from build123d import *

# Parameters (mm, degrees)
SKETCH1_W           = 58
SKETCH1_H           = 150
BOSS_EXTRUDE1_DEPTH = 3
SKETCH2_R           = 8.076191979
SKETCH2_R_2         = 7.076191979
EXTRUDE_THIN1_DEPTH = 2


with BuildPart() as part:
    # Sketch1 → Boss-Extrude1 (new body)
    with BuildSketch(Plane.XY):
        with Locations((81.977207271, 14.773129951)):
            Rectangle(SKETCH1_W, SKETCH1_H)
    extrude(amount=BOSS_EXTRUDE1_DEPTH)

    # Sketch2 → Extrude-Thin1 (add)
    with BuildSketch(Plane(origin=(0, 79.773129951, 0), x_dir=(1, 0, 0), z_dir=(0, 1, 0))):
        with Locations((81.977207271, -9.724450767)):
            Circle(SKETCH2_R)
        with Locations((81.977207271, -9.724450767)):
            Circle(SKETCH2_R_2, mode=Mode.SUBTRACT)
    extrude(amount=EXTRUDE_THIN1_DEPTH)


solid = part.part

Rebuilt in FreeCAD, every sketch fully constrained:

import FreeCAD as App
import Part
import Sketcher

V = App.Vector
Q = App.Units.Quantity


def add_polygon(sketch, points):
    """Adds a closed chain of lines whose ends are joined by coincident constraints."""
    first, n = sketch.GeometryCount, len(points)
    for a, b in zip(points, points[1:] + points[:1]):
        sketch.addGeometry(Part.LineSegment(App.Vector(*a, 0), App.Vector(*b, 0)), False)
    for i in range(n):
        sketch.addConstraint(Sketcher.Constraint("Coincident", first + i, 2, first + (i + 1) % n, 1))

doc = App.newDocument("Part")
body = doc.addObject("PartDesign::Body", "Body")

# Sketch on XY plane
sketch1 = doc.addObject("Sketcher::SketchObject", "Sketch")
body.addObject(sketch1)
sketch1.AttachmentSupport = (doc.XY_Plane, [""])
sketch1.MapMode = "FlatFace"
add_polygon(sketch1, [(53, 90), (53, -60), (111, -60), (111, 90)])  # lines 0-3
sketch1.addConstraint(Sketcher.Constraint("Vertical", 0))
sketch1.addConstraint(Sketcher.Constraint("Horizontal", 1))
sketch1.addConstraint(Sketcher.Constraint("Vertical", 2))
sketch1.addConstraint(Sketcher.Constraint("Horizontal", 3))
sketch1.addConstraint(Sketcher.Constraint("DistanceX", 1, 1, 1, 2, Q("58 mm")))
sketch1.addConstraint(Sketcher.Constraint("DistanceY", 0, 2, 0, 1, Q("150 mm")))
sketch1.addConstraint(Sketcher.Constraint("DistanceY", 0, 2, -1, 1, Q("60.22687 mm")))
sketch1.addConstraint(Sketcher.Constraint("DistanceX", -1, 1, 0, 2, Q("52.977207 mm")))
pad1 = doc.addObject("PartDesign::Pad", "Pad")
body.addObject(pad1)
pad1.Profile = sketch1
pad1.Length = 3

# Sketch on XZ plane
sketch2 = doc.addObject("Sketcher::SketchObject", "Sketch001")
body.addObject(sketch2)
sketch2.AttachmentSupport = (doc.XZ_Plane, [""])
sketch2.MapMode = "FlatFace"
sketch2.AttachmentOffset = App.Placement(V(0, 0, -79.77313), App.Rotation())
sketch2.addGeometry(Part.Circle(V(82, 10, 0), V(0, 0, 1), 8), False)
sketch2.addGeometry(Part.Circle(V(82, 10, 0), V(0, 0, 1), 7), False)
sketch2.addConstraint(Sketcher.Constraint("Coincident", 1, 3, 0, 3))
sketch2.addConstraint(Sketcher.Constraint("Diameter", 0, Q("16.152384 mm")))
sketch2.addConstraint(Sketcher.Constraint("Diameter", 1, Q("14.152384 mm")))
sketch2.addConstraint(Sketcher.Constraint("DistanceY", -1, 1, 0, 3, Q("9.724451 mm")))
sketch2.addConstraint(Sketcher.Constraint("DistanceX", -1, 1, 0, 3, Q("81.977207 mm")))
pad2 = doc.addObject("PartDesign::Pad", "Pad001")
body.addObject(pad2)
pad2.Profile = sketch2
pad2.Length = 2
pad2.Reversed = True

doc.recompute()
